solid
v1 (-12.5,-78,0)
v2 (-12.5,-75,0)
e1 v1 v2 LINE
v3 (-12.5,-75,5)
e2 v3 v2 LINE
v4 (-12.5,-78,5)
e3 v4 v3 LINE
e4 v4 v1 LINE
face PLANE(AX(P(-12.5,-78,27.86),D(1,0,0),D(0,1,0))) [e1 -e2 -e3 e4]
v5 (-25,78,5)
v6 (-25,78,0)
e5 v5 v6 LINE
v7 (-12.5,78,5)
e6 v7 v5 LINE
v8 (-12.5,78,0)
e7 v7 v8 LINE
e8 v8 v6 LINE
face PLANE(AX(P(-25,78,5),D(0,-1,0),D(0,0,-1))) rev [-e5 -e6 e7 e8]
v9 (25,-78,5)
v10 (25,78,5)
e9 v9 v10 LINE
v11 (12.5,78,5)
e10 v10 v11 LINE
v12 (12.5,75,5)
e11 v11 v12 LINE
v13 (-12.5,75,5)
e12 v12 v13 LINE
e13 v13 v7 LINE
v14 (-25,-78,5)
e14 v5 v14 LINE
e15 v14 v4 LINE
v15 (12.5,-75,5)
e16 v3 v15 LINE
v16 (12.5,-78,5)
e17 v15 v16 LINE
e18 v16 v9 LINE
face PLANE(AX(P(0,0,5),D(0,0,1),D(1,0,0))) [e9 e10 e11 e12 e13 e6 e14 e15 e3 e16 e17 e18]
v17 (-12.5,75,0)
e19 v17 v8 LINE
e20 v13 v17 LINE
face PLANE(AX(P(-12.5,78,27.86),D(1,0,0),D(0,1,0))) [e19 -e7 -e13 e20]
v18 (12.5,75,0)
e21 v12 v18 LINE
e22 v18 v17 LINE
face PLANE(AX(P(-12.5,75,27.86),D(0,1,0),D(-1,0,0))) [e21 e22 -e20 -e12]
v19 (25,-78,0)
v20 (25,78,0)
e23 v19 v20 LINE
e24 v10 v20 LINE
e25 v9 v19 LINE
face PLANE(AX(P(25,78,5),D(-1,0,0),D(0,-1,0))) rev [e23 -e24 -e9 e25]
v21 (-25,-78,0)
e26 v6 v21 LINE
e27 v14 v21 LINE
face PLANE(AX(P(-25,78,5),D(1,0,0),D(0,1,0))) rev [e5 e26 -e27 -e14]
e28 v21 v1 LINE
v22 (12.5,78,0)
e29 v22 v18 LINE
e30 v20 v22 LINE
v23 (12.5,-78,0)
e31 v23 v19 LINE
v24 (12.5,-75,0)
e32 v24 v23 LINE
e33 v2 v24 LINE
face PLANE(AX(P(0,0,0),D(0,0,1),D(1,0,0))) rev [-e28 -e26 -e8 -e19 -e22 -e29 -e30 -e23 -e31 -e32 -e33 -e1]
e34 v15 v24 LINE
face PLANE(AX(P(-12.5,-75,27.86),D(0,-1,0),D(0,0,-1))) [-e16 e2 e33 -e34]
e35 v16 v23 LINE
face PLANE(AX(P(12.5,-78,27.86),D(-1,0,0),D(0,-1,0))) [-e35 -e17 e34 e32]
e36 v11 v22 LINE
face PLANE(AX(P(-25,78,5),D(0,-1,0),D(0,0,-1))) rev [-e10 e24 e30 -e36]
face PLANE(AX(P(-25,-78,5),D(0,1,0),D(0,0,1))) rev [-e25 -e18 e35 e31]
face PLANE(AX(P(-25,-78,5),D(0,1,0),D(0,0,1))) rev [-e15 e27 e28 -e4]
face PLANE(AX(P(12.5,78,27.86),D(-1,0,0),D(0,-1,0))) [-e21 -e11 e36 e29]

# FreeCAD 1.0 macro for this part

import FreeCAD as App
import Part
import Sketcher
from FreeCAD import Vector
Q = App.Units.Quantity


def add_polygon(sketch, points):
    """Adds a closed chain of lines whose ends are joined by coincident constraints."""
    first, n = sketch.GeometryCount, len(points)
    for a, b in zip(points, points[1:] + points[:1]):
        sketch.addGeometry(Part.LineSegment(App.Vector(*a, 0), App.Vector(*b, 0)), False)
    for i in range(n):
        sketch.addConstraint(Sketcher.Constraint("Coincident", first + i, 2, first + (i + 1) % n, 1))

doc = App.newDocument("Part")
body = doc.addObject("PartDesign::Body", "Body")

sketch1 = body.newObject("Sketcher::SketchObject", "Sketch")
sketch1.AttachmentSupport = (doc.getObject("XY_Plane"), [""])
sketch1.MapMode = "FlatFace"
add_polygon(sketch1, [(-25, 78), (-25, -78), (25, -78), (25, 78)])
sketch1.addConstraint(Sketcher.Constraint("Vertical", 0))
sketch1.addConstraint(Sketcher.Constraint("Horizontal", 1))
sketch1.addConstraint(Sketcher.Constraint("Vertical", 2))
sketch1.addConstraint(Sketcher.Constraint("Horizontal", 3))
sketch1.addConstraint(Sketcher.Constraint("Symmetric", 0, 2, 2, 2, -1, 1))
sketch1.addConstraint(Sketcher.Constraint("DistanceX", 1, 1, 1, 2, Q("50 mm")))
sketch1.addConstraint(Sketcher.Constraint("DistanceY", 0, 2, 0, 1, Q("156 mm")))
pad1 = body.newObject("PartDesign::Pad", "Pad")
pad1.Profile = sketch1
pad1.Length = 5

sketch2 = body.newObject("Sketcher::SketchObject", "Sketch001")
sketch2.AttachmentSupport = (doc.getObject("XY_Plane"), [""])
sketch2.MapMode = "FlatFace"
sketch2.AttachmentOffset = App.Placement(Vector(0, 0, 5), App.Rotation())
add_polygon(sketch2, [(-12.5, 78), (-12.5, 75), (12.5, 75), (12.5, 78)])
add_polygon(sketch2, [(-12.5, -75), (-12.5, -78), (12.5, -78), (12.5, -75)])
sketch2.addConstraint(Sketcher.Constraint("Vertical", 0))
sketch2.addConstraint(Sketcher.Constraint("Horizontal", 1))
sketch2.addConstraint(Sketcher.Constraint("Vertical", 2))
sketch2.addConstraint(Sketcher.Constraint("Horizontal", 3))
sketch2.addConstraint(Sketcher.Constraint("Vertical", 4))
sketch2.addConstraint(Sketcher.Constraint("Horizontal", 5))
sketch2.addConstraint(Sketcher.Constraint("Vertical", 6))
sketch2.addConstraint(Sketcher.Constraint("Horizontal", 7))
sketch2.addConstraint(Sketcher.Constraint("Symmetric", 2, 2, 4, 2, -1, 1))
sketch2.addConstraint(Sketcher.Constraint("Symmetric", 0, 2, 6, 2, -1, 1))
sketch2.addConstraint(Sketcher.Constraint("Vertical", 3, 2, 4, 2))
sketch2.addConstraint(Sketcher.Constraint("DistanceX", 1, 1, 1, 2, Q("25 mm")))
sketch2.addConstraint(Sketcher.Constraint("DistanceY", 0, 2, 0, 1, Q("3 mm")))
sketch2.addConstraint(Sketcher.Constraint("DistanceY", -1, 1, 0, 2, Q("75 mm")))
pocket1 = body.newObject("PartDesign::Pocket", "Pocket")
pocket1.Profile = sketch2
pocket1.Type = "ThroughAll"
pocket1.Midplane = True

doc.recompute()
